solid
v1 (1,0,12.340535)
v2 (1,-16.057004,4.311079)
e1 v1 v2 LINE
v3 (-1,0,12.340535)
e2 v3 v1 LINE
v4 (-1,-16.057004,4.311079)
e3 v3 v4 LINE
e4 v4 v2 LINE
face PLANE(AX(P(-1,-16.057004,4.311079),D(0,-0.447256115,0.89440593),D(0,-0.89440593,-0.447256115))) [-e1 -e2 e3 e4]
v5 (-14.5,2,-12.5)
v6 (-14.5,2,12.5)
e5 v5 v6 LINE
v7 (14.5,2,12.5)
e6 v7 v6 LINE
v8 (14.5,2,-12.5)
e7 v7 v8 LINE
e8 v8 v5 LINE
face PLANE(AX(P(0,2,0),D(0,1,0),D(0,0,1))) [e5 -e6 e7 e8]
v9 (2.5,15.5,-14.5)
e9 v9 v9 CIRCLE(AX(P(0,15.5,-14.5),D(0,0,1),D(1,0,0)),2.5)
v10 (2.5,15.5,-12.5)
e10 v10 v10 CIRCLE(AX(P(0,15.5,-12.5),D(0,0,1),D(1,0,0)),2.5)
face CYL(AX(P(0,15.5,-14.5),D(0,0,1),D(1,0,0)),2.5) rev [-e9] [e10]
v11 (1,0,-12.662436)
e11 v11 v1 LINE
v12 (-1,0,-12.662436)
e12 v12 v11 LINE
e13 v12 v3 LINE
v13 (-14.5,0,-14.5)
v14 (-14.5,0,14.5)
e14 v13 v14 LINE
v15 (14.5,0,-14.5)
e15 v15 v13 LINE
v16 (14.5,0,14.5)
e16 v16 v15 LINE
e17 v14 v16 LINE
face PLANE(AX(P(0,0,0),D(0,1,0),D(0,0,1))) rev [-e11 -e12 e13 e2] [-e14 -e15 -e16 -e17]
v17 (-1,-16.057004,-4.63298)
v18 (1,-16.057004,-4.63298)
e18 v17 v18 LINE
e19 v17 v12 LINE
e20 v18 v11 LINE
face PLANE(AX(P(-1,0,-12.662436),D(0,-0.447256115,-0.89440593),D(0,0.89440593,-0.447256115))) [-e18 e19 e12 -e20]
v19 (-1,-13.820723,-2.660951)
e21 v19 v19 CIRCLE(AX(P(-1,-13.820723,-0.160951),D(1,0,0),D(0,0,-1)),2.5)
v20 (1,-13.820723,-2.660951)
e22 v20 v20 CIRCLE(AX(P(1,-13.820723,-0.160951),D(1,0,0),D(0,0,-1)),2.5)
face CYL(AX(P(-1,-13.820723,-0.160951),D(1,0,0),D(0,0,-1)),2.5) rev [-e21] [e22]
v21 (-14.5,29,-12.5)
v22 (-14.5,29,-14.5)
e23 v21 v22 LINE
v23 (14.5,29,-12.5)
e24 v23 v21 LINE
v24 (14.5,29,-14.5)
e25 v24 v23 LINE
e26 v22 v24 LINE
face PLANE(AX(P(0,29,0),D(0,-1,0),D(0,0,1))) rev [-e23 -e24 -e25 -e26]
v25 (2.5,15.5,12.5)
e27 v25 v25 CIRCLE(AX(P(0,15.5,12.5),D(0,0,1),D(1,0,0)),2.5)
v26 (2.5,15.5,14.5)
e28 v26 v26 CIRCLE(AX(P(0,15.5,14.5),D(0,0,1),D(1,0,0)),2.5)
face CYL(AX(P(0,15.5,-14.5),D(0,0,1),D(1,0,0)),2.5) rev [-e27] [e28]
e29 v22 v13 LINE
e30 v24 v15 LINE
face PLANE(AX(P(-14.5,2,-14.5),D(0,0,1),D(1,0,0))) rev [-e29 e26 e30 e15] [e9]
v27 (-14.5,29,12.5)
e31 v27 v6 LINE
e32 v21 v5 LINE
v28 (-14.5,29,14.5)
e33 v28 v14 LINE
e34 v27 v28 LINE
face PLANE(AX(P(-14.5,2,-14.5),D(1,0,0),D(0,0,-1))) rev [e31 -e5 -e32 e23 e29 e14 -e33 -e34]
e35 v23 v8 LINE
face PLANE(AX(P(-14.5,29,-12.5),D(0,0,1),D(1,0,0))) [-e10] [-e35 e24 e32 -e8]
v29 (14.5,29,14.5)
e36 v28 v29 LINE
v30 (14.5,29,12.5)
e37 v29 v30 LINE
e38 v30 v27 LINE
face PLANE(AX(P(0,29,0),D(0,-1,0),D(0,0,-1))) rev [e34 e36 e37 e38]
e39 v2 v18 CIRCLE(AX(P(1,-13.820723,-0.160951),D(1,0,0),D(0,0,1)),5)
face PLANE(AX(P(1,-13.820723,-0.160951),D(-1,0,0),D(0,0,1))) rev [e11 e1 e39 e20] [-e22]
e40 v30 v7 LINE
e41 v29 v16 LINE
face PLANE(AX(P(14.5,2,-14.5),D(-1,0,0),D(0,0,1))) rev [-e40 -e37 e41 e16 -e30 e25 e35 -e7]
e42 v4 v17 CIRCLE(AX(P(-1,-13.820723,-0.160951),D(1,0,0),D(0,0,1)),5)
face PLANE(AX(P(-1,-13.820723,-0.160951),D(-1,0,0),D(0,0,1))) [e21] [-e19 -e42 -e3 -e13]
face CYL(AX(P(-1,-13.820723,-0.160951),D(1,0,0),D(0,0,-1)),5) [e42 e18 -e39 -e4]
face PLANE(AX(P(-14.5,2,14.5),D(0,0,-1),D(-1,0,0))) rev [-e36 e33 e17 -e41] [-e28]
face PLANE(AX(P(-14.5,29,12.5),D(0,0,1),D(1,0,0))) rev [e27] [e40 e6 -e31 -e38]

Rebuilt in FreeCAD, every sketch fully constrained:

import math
import FreeCAD as App
import Part
import Sketcher
from FreeCAD import Vector
Q = App.Units.Quantity

doc = App.newDocument("Part")
params = doc.addObject("Spreadsheet::Sheet", "Params")
for row, (alias, value) in enumerate([
    ("sketch1_width", "29 mm"),
    ("pad1_length", "2 mm"),
    ("sketch2_width", "29 mm"),
    ("sketch2_height", "2 mm"),
    ("pad2_length", "27 mm"),
    ("sketch3_diameter", "5 mm"),
    ("sketch4_diameter", "5 mm"),
    ("sketch4_radius", "5 mm"),
    ("pad3_length", "1 mm"),
    ("pad3_length2", "1 mm"),
], start=1):
    params.set(f"A{row}", alias)
    params.set(f"B{row}", "=" + value)
    params.setAlias(f"B{row}", alias)

body = doc.addObject("PartDesign::Body", "Body")

sketch1 = body.newObject("Sketcher::SketchObject", "Sketch")
sketch1.AttachmentSupport = (doc.getObject("XZ_Plane"), [""])
sketch1.MapMode = "FlatFace"
sketch1.addGeometry(Part.LineSegment(Vector(-14, -14, 0), Vector(-14, 14, 0)), False)
sketch1.addGeometry(Part.LineSegment(Vector(-14, 14, 0), Vector(14, 14, 0)), False)
sketch1.addGeometry(Part.LineSegment(Vector(14, 14, 0), Vector(14, -14, 0)), False)
sketch1.addGeometry(Part.LineSegment(Vector(14, -14, 0), Vector(-14, -14, 0)), False)
sketch1.addConstraint(Sketcher.Constraint("Coincident", 0, 2, 1, 1))
sketch1.addConstraint(Sketcher.Constraint("Coincident", 1, 2, 2, 1))
sketch1.addConstraint(Sketcher.Constraint("Coincident", 2, 2, 3, 1))
sketch1.addConstraint(Sketcher.Constraint("Coincident", 3, 2, 0, 1))
sketch1.addConstraint(Sketcher.Constraint("Vertical", 0))
sketch1.addConstraint(Sketcher.Constraint("Horizontal", 1))
sketch1.addConstraint(Sketcher.Constraint("Vertical", 2))
sketch1.addConstraint(Sketcher.Constraint("Horizontal", 3))
sketch1.addConstraint(Sketcher.Constraint("Symmetric", 0, 2, 2, 2, -1, 1))
sketch1.addConstraint(Sketcher.Constraint("Equal", 3, 0))
sketch1.addConstraint(Sketcher.Constraint("DistanceX", 1, 1, 1, 2, Q("29 mm")))
sketch1.setExpression("Constraints[10]", "Params.sketch1_width")
pad1 = body.newObject("PartDesign::Pad", "Pad")
pad1.Profile = sketch1
pad1.setExpression("Length", "Params.pad1_length")
pad1.Reversed = True

sketch2 = body.newObject("Sketcher::SketchObject", "Sketch001")
sketch2.AttachmentSupport = (doc.getObject("XZ_Plane"), [""])
sketch2.MapMode = "FlatFace"
sketch2.AttachmentOffset = App.Placement(Vector(0, 0, -2), App.Rotation())
sketch2.addGeometry(Part.LineSegment(Vector(-14.5, 12.5, 0), Vector(-14.5, 14.5, 0)), False)
sketch2.addGeometry(Part.LineSegment(Vector(-14.5, 14.5, 0), Vector(14.5, 14.5, 0)), False)
sketch2.addGeometry(Part.LineSegment(Vector(14.5, 14.5, 0), Vector(14.5, 12.5, 0)), False)
sketch2.addGeometry(Part.LineSegment(Vector(14.5, 12.5, 0), Vector(-14.5, 12.5, 0)), False)
sketch2.addConstraint(Sketcher.Constraint("Coincident", 0, 2, 1, 1))
sketch2.addConstraint(Sketcher.Constraint("Coincident", 1, 2, 2, 1))
sketch2.addConstraint(Sketcher.Constraint("Coincident", 2, 2, 3, 1))
sketch2.addConstraint(Sketcher.Constraint("Coincident", 3, 2, 0, 1))
sketch2.addConstraint(Sketcher.Constraint("Vertical", 0))
sketch2.addConstraint(Sketcher.Constraint("Horizontal", 1))
sketch2.addConstraint(Sketcher.Constraint("Vertical", 2))
sketch2.addConstraint(Sketcher.Constraint("Horizontal", 3))
sketch2.addConstraint(Sketcher.Constraint("DistanceX", 1, 1, 1, 2, Q("29 mm")))
sketch2.addConstraint(Sketcher.Constraint("DistanceY", 0, 1, 0, 2, Q("2 mm")))
sketch2.addConstraint(Sketcher.Constraint("DistanceX", 0, 2, -1, 1, Q("14.5 mm")))
sketch2.addConstraint(Sketcher.Constraint("DistanceY", -1, 1, 0, 2, Q("14.5 mm")))
sketch2.setExpression("Constraints[8]", "Params.sketch2_width")
sketch2.setExpression("Constraints[9]", "Params.sketch2_height")
pad2 = body.newObject("PartDesign::Pad", "Pad001")
pad2.Profile = sketch2
pad2.setExpression("Length", "Params.pad2_length")
pad2.Reversed = True
doc.recompute()

mirrored = body.newObject("PartDesign::Mirrored", "Mirrored")
mirrored.Originals = [pad2]
mirrored.MirrorPlane = (doc.getObject("XY_Plane"), [""])
body.Tip = mirrored

sketch3 = body.newObject("Sketcher::SketchObject", "Sketch002")
sketch3.AttachmentSupport = (doc.getObject("XY_Plane"), [""])
sketch3.MapMode = "FlatFace"
sketch3.AttachmentOffset = App.Placement(Vector(0, 0, 14.5), App.Rotation())
sketch3.addGeometry(Part.Circle(Vector(0, 15.5, 0), Vector(0, 0, 1), 2.5), False)
sketch3.addConstraint(Sketcher.Constraint("PointOnObject", 0, 3, -2))
sketch3.addConstraint(Sketcher.Constraint("Diameter", 0, Q("5 mm")))
sketch3.addConstraint(Sketcher.Constraint("DistanceY", -1, 1, 0, 3, Q("15.5 mm")))
sketch3.setExpression("Constraints[1]", "Params.sketch3_diameter")
pocket1 = body.newObject("PartDesign::Pocket", "Pocket")
pocket1.Profile = sketch3
pocket1.Type = "ThroughAll"

sketch4 = body.newObject("Sketcher::SketchObject", "Sketch003")
sketch4.AttachmentSupport = (doc.getObject("YZ_Plane"), [""])
sketch4.MapMode = "FlatFace"
sketch4.addGeometry(Part.LineSegment(Vector(0, -12.7, 0), Vector(0, 12.3, 0)), False)
sketch4.addGeometry(Part.LineSegment(Vector(0, 12.3, 0), Vector(-16.1, 4.3, 0)), False)
sketch4.addGeometry(Part.ArcOfCircle(Part.Circle(Vector(-13.8, -0.2, 0), Vector(0, 0, 1), 5), math.radians(117), math.radians(243)), False)
sketch4.addGeometry(Part.LineSegment(Vector(-16.1, -4.6, 0), Vector(0, -12.7, 0)), False)
sketch4.addGeometry(Part.Circle(Vector(-13.8, -0.2, 0), Vector(0, 0, 1), 2.5), False)
sketch4.addConstraint(Sketcher.Constraint("Coincident", 0, 2, 1, 1))
sketch4.addConstraint(Sketcher.Constraint("Tangent", 1, 2, 2, 1))
sketch4.addConstraint(Sketcher.Constraint("Tangent", 2, 2, 3, 1))
sketch4.addConstraint(Sketcher.Constraint("Coincident", 3, 2, 0, 1))
sketch4.addConstraint(Sketcher.Constraint("Vertical", 0))
sketch4.addConstraint(Sketcher.Constraint("Coincident", 4, 3, 2, 3))
sketch4.addConstraint(Sketcher.Constraint("PointOnObject", 0, 2, -2))
sketch4.addConstraint(Sketcher.Constraint("Vertical", 1, 2, 2, 2))
sketch4.addConstraint(Sketcher.Constraint("Diameter", 4, Q("5 mm")))
sketch4.addConstraint(Sketcher.Constraint("Radius", 2, Q("5 mm")))
sketch4.addConstraint(Sketcher.Constraint("DistanceY", 0, 1, 0, 2, Q("25.002971 mm")))
sketch4.addConstraint(Sketcher.Constraint("DistanceY", 2, 3, -1, 1, Q("0.160951 mm")))
sketch4.addConstraint(Sketcher.Constraint("DistanceY", -1, 1, 1, 2, Q("4.311079 mm")))
sketch4.setExpression("Constraints[8]", "Params.sketch4_diameter")
sketch4.setExpression("Constraints[9]", "Params.sketch4_radius")
pad3 = body.newObject("PartDesign::Pad", "Pad002")
pad3.Profile = sketch4
pad3.Type = "TwoLengths"
pad3.setExpression("Length", "Params.pad3_length")
pad3.setExpression("Length2", "Params.pad3_length2")

doc.recompute()
